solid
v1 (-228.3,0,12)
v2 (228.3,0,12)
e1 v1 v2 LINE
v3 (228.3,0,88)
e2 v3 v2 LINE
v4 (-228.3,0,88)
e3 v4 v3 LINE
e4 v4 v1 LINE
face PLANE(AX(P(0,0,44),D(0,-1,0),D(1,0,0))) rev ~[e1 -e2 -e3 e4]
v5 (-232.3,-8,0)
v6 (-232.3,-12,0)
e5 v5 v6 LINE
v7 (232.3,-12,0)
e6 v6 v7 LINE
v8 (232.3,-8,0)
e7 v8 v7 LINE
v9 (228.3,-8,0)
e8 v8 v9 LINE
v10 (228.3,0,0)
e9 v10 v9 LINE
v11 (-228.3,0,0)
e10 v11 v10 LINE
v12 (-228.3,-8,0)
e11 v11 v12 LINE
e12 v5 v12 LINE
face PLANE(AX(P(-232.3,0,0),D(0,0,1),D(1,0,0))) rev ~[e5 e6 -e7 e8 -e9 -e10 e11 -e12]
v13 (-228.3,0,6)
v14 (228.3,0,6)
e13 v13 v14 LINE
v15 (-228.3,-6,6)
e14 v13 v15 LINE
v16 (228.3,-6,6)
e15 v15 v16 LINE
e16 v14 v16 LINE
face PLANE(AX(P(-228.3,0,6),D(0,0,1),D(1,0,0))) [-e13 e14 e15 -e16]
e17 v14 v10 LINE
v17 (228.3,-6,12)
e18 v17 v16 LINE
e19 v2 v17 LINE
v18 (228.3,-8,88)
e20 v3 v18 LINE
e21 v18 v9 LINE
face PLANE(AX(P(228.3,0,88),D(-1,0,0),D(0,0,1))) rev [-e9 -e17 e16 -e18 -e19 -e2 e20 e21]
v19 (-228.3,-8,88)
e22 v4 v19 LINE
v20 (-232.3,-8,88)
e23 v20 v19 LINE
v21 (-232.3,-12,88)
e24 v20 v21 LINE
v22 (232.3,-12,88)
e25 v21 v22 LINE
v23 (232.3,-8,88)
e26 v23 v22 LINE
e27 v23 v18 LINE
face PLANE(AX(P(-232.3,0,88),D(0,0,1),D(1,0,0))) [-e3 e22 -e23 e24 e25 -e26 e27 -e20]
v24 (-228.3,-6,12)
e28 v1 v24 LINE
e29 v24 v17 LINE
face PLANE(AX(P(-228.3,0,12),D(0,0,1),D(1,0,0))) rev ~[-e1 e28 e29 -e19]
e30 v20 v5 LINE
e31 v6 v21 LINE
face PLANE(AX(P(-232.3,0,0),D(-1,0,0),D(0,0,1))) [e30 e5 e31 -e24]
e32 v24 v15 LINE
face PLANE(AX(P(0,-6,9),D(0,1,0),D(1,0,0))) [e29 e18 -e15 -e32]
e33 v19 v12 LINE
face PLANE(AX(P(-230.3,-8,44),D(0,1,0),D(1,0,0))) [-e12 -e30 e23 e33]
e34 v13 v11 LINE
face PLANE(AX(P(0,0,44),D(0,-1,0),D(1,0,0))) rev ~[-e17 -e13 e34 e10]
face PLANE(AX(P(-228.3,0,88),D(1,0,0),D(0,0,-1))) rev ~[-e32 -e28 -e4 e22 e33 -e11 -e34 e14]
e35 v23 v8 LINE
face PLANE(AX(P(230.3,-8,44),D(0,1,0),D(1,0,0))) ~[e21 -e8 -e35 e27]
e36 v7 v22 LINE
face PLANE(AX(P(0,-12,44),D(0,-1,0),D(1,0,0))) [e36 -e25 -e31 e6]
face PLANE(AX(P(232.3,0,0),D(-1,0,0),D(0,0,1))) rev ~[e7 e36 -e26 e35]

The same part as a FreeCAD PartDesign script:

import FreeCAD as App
import Part
import Sketcher
from FreeCAD import Vector
Q = App.Units.Quantity


def add_polygon(sketch, points):
    """Adds a closed chain of lines whose ends are joined by coincident constraints."""
    first, n = sketch.GeometryCount, len(points)
    for a, b in zip(points, points[1:] + points[:1]):
        sketch.addGeometry(Part.LineSegment(App.Vector(*a, 0), App.Vector(*b, 0)), False)
    for i in range(n):
        sketch.addConstraint(Sketcher.Constraint("Coincident", first + i, 2, first + (i + 1) % n, 1))

doc = App.newDocument("Part")
params = doc.addObject("Spreadsheet::Sheet", "Params")
for row, (alias, value) in enumerate([
    ("sketch1_height", "88 mm"),
    ("sketch1_width", "464.6 mm"),
    ("pad1_length", "12 mm"),
    ("sketch2_width", "4 mm"),
    ("sketch2_height", "88 mm"),
    ("pocket1_length", "8 mm"),
    ("sketch3_height", "6 mm"),
    ("sketch3_width", "456.6 mm"),
    ("pocket2_length", "6 mm"),
], start=1):
    params.set(f"A{row}", alias)
    params.set(f"B{row}", "=" + value)
    params.setAlias(f"B{row}", alias)

body = doc.addObject("PartDesign::Body", "Body")

# Sketch on XY plane
sketch1 = body.newObject("Sketcher::SketchObject", "Sketch")
sketch1.AttachmentSupport = (doc.getObject("XY_Plane"), [""])
sketch1.MapMode = "FlatFace"
add_polygon(sketch1, [(-232, 88), (-232, 0), (232, 0), (232, 88)])  # lines 0-3
sketch1.addConstraint([
    Sketcher.Constraint("Vertical", 0),
    Sketcher.Constraint("Horizontal", 1),
    Sketcher.Constraint("Vertical", 2),
    Sketcher.Constraint("Horizontal", 3),
    Sketcher.Constraint("Symmetric", 0, 2, 1, 2, -1, 1),
    Sketcher.Constraint("DistanceY", 0, 2, 0, 1, Q("88 mm")),
    Sketcher.Constraint("DistanceX", 1, 1, 1, 2, Q("464.6 mm")),
])
sketch1.setExpression("Constraints[9]", "Params.sketch1_height")
sketch1.setExpression("Constraints[10]", "Params.sketch1_width")
pad1 = body.newObject("PartDesign::Pad", "Pad")
pad1.Profile = sketch1
pad1.setExpression("Length", "Params.pad1_length")

# Sketch on XY plane
sketch2 = body.newObject("Sketcher::SketchObject", "Sketch001")
sketch2.AttachmentSupport = (doc.getObject("XY_Plane"), [""])
sketch2.MapMode = "FlatFace"
add_polygon(sketch2, [(-232.3, 0), (-232.3, 88), (-228.3, 88), (-228.3, 0)])  # lines 0-3
sketch2.addConstraint([
    Sketcher.Constraint("Vertical", 0),
    Sketcher.Constraint("Horizontal", 1),
    Sketcher.Constraint("Vertical", 2),
    Sketcher.Constraint("Horizontal", 3),
    Sketcher.Constraint("PointOnObject", 2, 2, -1),
    Sketcher.Constraint("DistanceX", 1, 1, 1, 2, Q("4 mm")),
    Sketcher.Constraint("DistanceY", 0, 1, 0, 2, Q("88 mm")),
    Sketcher.Constraint("DistanceX", 0, 2, -1, 1, Q("232.3 mm")),
])
sketch2.setExpression("Constraints[9]", "Params.sketch2_width")
sketch2.setExpression("Constraints[10]", "Params.sketch2_height")
pocket1 = body.newObject("PartDesign::Pocket", "Pocket")
pocket1.Profile = sketch2
pocket1.setExpression("Length", "Params.pocket1_length")
pocket1.Reversed = True
doc.recompute()

mirrored = body.newObject("PartDesign::Mirrored", "Mirrored")
mirrored.Originals = [pocket1]
mirrored.MirrorPlane = (doc.getObject("YZ_Plane"), [""])
body.Tip = mirrored

# Sketch on XY plane
sketch3 = body.newObject("Sketcher::SketchObject", "Sketch002")
sketch3.AttachmentSupport = (doc.getObject("XY_Plane"), [""])
sketch3.MapMode = "FlatFace"
add_polygon(sketch3, [(-228, 6), (-228, 12), (228, 12), (228, 6)])  # lines 0-3
sketch3.addConstraint([
    Sketcher.Constraint("Vertical", 0),
    Sketcher.Constraint("Horizontal", 1),
    Sketcher.Constraint("Vertical", 2),
    Sketcher.Constraint("Horizontal", 3),
    Sketcher.Constraint("DistanceY", 0, 1, 0, 2, Q("6 mm")),
    Sketcher.Constraint("DistanceX", 1, 1, 1, 2, Q("456.6 mm")),
    Sketcher.Constraint("DistanceY", -1, 1, 0, 2, Q("12 mm")),
    Sketcher.Constraint("DistanceX", 0, 2, -1, 1, Q("228.3 mm")),
])
sketch3.setExpression("Constraints[8]", "Params.sketch3_height")
sketch3.setExpression("Constraints[9]", "Params.sketch3_width")
pocket2 = body.newObject("PartDesign::Pocket", "Pocket001")
pocket2.Profile = sketch3
pocket2.setExpression("Length", "Params.pocket2_length")
pocket2.Reversed = True
body2 = doc.addObject("PartDesign::Body", "Body001")
doc.recompute()

body.Placement = App.Placement(Vector(0, 0, 0), App.Rotation(Vector(1, 0, 0), 90))
boolean = body2.newObject("PartDesign::Boolean", "Boolean")
boolean.Type = "Fuse"
boolean.addObjects([body])

doc.recompute()
